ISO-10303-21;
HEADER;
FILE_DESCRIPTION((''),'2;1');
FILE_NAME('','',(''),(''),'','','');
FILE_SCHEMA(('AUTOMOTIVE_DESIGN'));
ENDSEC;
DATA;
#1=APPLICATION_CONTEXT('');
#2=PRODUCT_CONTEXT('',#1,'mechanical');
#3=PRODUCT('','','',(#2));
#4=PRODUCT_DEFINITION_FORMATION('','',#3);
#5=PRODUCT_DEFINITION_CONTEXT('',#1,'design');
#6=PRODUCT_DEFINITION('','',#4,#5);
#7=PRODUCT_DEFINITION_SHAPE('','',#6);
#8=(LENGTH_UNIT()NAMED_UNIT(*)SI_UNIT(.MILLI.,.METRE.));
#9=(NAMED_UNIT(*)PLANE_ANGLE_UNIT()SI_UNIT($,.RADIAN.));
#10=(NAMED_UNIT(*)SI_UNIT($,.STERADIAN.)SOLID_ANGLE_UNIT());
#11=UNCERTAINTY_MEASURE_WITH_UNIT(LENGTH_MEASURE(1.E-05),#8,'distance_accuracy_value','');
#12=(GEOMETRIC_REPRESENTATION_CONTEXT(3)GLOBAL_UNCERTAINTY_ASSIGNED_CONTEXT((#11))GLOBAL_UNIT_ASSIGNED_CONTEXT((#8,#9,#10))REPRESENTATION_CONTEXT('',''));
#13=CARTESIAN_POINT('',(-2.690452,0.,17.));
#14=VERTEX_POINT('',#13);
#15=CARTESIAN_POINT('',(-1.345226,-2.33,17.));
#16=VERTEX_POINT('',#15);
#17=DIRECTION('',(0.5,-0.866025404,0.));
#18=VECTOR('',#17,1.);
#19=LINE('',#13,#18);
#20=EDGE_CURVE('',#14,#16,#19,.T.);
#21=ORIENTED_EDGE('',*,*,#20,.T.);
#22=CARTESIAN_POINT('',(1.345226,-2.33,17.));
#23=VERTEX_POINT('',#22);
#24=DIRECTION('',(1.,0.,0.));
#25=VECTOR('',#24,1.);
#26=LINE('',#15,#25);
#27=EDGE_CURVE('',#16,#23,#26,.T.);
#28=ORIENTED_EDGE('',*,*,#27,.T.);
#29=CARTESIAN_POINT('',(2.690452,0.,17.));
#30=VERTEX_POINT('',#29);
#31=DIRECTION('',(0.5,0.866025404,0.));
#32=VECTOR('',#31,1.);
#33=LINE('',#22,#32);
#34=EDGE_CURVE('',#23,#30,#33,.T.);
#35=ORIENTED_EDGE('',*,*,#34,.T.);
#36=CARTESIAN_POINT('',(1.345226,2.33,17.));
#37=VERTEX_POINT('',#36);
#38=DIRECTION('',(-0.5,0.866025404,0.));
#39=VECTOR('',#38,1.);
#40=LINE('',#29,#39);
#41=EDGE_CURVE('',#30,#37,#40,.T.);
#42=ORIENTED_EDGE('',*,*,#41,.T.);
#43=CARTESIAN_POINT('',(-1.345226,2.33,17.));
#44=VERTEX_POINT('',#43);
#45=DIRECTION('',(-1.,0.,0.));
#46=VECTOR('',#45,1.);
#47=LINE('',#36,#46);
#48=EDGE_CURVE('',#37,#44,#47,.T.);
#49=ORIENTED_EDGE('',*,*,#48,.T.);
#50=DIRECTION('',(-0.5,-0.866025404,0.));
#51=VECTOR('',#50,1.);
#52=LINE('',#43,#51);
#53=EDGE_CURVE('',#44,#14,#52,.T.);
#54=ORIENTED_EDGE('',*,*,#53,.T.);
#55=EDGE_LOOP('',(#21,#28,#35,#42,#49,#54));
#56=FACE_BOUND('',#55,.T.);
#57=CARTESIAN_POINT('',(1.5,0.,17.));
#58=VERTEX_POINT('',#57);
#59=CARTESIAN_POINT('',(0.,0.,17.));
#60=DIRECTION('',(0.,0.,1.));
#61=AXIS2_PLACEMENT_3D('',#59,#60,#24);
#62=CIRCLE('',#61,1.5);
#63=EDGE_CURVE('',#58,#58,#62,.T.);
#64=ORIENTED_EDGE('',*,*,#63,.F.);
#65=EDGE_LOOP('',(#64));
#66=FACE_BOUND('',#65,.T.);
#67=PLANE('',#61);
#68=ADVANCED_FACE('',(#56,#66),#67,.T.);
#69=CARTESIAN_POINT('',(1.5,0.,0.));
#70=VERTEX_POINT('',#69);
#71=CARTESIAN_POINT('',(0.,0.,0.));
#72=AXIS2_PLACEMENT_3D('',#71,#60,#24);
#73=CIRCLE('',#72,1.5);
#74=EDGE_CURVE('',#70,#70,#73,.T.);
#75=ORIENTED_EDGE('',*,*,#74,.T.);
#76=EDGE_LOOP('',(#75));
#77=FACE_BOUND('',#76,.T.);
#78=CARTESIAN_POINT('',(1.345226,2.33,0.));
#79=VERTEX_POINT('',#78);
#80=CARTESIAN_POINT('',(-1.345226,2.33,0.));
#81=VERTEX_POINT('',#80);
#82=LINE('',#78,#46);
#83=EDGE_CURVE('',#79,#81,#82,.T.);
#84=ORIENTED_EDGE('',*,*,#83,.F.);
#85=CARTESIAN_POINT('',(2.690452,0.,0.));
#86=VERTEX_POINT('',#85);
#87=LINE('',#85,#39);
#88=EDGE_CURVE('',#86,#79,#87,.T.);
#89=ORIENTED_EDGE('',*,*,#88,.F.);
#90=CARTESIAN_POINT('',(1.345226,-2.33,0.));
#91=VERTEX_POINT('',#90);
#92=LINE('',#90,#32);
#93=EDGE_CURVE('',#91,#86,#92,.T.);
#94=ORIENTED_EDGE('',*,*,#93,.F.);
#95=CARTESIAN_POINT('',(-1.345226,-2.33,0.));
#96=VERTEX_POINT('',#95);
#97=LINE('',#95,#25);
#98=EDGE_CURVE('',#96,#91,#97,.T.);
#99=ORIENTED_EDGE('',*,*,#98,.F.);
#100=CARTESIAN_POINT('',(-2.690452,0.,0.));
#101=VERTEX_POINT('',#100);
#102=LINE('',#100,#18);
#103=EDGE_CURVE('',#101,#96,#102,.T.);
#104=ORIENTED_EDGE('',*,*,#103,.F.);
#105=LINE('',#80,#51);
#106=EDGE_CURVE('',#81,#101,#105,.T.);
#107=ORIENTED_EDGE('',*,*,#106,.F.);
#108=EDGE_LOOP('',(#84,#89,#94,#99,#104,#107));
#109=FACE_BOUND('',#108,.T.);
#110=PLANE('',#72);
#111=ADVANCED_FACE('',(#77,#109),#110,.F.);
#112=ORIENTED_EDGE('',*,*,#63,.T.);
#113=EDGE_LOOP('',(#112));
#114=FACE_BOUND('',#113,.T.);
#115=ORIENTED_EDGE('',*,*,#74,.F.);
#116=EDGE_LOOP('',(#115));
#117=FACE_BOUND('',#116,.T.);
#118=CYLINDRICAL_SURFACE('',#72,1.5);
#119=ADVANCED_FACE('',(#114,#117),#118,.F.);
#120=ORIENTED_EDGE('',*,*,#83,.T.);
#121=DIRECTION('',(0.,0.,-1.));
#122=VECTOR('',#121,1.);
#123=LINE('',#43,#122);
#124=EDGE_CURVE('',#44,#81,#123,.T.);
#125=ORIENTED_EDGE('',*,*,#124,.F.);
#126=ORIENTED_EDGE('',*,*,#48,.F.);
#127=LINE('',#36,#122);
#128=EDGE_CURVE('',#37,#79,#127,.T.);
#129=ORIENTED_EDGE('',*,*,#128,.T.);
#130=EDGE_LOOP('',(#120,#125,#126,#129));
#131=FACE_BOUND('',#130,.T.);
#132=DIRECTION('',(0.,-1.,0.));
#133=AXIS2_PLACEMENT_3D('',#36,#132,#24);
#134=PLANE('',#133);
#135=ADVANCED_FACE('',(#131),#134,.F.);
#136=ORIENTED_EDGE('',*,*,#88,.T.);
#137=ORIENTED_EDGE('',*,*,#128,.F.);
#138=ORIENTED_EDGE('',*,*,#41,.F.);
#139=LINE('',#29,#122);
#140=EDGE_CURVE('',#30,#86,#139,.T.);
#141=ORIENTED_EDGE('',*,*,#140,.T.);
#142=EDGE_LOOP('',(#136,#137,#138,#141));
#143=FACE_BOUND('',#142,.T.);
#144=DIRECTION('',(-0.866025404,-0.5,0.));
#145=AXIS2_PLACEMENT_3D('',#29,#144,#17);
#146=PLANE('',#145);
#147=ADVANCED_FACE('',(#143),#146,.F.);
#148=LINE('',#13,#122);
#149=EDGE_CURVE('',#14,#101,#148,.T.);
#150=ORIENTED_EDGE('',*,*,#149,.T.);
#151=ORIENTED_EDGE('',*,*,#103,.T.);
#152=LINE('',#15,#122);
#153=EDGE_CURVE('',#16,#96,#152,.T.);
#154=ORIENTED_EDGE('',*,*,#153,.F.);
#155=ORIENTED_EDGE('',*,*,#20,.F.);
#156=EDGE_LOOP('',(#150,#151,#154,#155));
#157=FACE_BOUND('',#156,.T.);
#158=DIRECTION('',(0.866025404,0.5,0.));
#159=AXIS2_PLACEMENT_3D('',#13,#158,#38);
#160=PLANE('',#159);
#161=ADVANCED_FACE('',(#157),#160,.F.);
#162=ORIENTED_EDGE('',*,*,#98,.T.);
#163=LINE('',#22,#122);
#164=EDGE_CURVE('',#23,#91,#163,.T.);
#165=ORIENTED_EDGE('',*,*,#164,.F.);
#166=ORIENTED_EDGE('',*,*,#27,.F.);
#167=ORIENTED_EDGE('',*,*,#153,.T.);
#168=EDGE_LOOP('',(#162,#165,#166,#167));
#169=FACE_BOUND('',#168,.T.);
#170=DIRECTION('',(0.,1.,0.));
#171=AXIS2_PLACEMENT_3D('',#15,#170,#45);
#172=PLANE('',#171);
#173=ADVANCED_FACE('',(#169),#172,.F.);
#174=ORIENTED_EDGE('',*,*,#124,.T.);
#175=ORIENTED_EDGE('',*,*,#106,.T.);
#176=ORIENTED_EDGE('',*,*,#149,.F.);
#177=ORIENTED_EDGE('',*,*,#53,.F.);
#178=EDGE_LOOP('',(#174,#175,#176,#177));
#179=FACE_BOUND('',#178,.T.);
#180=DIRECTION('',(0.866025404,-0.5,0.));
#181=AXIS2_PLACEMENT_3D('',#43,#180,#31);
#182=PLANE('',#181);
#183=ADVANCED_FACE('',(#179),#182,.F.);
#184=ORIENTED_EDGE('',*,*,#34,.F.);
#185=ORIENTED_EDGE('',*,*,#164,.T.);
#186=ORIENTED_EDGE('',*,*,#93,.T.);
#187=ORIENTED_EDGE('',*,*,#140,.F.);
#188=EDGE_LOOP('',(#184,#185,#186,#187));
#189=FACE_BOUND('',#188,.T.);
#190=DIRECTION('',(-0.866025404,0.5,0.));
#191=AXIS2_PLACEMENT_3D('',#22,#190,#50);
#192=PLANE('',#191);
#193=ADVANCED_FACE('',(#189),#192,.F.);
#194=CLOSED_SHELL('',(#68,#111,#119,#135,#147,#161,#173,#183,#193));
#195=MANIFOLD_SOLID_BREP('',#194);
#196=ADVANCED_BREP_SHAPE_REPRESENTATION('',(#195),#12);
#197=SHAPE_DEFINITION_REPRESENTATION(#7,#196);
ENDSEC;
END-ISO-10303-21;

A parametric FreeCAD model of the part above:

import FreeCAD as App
import Part
import Sketcher
from FreeCAD import Vector
Q = App.Units.Quantity

doc = App.newDocument("Part")
body = doc.addObject("PartDesign::Body", "Body")

# Sketch on XY plane
sketch1 = doc.addObject("Sketcher::SketchObject", "Sketch")
body.addObject(sketch1)
sketch1.AttachmentSupport = (doc.XY_Plane, [""])
sketch1.MapMode = "FlatFace"
sketch1.addGeometry(Part.LineSegment(Vector(2.7, 0, 0), Vector(1.3, 2.3, 0)), False)
sketch1.addGeometry(Part.LineSegment(Vector(1.3, 2.3, 0), Vector(-1.3, 2.3, 0)), False)
sketch1.addGeometry(Part.LineSegment(Vector(-1.3, 2.3, 0), Vector(-2.7, 0, 0)), False)
sketch1.addGeometry(Part.LineSegment(Vector(-2.7, 0, 0), Vector(-1.3, -2.3, 0)), False)
sketch1.addGeometry(Part.LineSegment(Vector(-1.3, -2.3, 0), Vector(1.3, -2.3, 0)), False)
sketch1.addGeometry(Part.LineSegment(Vector(1.3, -2.3, 0), Vector(2.7, 0, 0)), False)
sketch1.addConstraint(Sketcher.Constraint("Coincident", 0, 2, 1, 1))
sketch1.addConstraint(Sketcher.Constraint("Coincident", 1, 2, 2, 1))
sketch1.addConstraint(Sketcher.Constraint("Coincident", 2, 2, 3, 1))
sketch1.addConstraint(Sketcher.Constraint("Coincident", 3, 2, 4, 1))
sketch1.addConstraint(Sketcher.Constraint("Coincident", 4, 2, 5, 1))
sketch1.addConstraint(Sketcher.Constraint("Coincident", 5, 2, 0, 1))
sketch1.addConstraint(Sketcher.Constraint("Horizontal", 1))
sketch1.addConstraint(Sketcher.Constraint("Horizontal", 4))
sketch1.addConstraint(Sketcher.Constraint("Symmetric", 0, 2, 3, 2, -1, 1))
sketch1.addConstraint(Sketcher.Constraint("Symmetric", 2, 2, 5, 2, -1, 1))
sketch1.addConstraint(Sketcher.Constraint("PointOnObject", 2, 2, -1))
sketch1.addConstraint(Sketcher.Constraint("Parallel", 2, 5))
sketch1.addConstraint(Sketcher.Constraint("Vertical", 1, 2, 3, 2))
sketch1.addConstraint(Sketcher.Constraint("Angle", 0, Q("120 deg")))
sketch1.addConstraint(Sketcher.Constraint("DistanceY", -1, 1, 0, 2, Q("2.33 mm")))
sketch1.addConstraint(Sketcher.Constraint("DistanceX", 1, 2, 1, 1, Q("2.690452 mm")))
pad1 = doc.addObject("PartDesign::Pad", "Pad")
body.addObject(pad1)
pad1.Profile = sketch1
pad1.Length = 17

# Sketch on XY plane
sketch2 = doc.addObject("Sketcher::SketchObject", "Sketch001")
body.addObject(sketch2)
sketch2.AttachmentSupport = (doc.XY_Plane, [""])
sketch2.MapMode = "FlatFace"
sketch2.AttachmentOffset = App.Placement(Vector(0, 0, 17), App.Rotation())
sketch2.addGeometry(Part.Circle(Vector(0, 0, 0), Vector(0, 0, 1), 1.5), False)
sketch2.addConstraint(Sketcher.Constraint("Coincident", 0, 3, -1, 1))
sketch2.addConstraint(Sketcher.Constraint("Diameter", 0, Q("3 mm")))
pocket1 = doc.addObject("PartDesign::Pocket", "Pocket")
body.addObject(pocket1)
pocket1.Profile = sketch2
pocket1.Length = 17

doc.recompute()
